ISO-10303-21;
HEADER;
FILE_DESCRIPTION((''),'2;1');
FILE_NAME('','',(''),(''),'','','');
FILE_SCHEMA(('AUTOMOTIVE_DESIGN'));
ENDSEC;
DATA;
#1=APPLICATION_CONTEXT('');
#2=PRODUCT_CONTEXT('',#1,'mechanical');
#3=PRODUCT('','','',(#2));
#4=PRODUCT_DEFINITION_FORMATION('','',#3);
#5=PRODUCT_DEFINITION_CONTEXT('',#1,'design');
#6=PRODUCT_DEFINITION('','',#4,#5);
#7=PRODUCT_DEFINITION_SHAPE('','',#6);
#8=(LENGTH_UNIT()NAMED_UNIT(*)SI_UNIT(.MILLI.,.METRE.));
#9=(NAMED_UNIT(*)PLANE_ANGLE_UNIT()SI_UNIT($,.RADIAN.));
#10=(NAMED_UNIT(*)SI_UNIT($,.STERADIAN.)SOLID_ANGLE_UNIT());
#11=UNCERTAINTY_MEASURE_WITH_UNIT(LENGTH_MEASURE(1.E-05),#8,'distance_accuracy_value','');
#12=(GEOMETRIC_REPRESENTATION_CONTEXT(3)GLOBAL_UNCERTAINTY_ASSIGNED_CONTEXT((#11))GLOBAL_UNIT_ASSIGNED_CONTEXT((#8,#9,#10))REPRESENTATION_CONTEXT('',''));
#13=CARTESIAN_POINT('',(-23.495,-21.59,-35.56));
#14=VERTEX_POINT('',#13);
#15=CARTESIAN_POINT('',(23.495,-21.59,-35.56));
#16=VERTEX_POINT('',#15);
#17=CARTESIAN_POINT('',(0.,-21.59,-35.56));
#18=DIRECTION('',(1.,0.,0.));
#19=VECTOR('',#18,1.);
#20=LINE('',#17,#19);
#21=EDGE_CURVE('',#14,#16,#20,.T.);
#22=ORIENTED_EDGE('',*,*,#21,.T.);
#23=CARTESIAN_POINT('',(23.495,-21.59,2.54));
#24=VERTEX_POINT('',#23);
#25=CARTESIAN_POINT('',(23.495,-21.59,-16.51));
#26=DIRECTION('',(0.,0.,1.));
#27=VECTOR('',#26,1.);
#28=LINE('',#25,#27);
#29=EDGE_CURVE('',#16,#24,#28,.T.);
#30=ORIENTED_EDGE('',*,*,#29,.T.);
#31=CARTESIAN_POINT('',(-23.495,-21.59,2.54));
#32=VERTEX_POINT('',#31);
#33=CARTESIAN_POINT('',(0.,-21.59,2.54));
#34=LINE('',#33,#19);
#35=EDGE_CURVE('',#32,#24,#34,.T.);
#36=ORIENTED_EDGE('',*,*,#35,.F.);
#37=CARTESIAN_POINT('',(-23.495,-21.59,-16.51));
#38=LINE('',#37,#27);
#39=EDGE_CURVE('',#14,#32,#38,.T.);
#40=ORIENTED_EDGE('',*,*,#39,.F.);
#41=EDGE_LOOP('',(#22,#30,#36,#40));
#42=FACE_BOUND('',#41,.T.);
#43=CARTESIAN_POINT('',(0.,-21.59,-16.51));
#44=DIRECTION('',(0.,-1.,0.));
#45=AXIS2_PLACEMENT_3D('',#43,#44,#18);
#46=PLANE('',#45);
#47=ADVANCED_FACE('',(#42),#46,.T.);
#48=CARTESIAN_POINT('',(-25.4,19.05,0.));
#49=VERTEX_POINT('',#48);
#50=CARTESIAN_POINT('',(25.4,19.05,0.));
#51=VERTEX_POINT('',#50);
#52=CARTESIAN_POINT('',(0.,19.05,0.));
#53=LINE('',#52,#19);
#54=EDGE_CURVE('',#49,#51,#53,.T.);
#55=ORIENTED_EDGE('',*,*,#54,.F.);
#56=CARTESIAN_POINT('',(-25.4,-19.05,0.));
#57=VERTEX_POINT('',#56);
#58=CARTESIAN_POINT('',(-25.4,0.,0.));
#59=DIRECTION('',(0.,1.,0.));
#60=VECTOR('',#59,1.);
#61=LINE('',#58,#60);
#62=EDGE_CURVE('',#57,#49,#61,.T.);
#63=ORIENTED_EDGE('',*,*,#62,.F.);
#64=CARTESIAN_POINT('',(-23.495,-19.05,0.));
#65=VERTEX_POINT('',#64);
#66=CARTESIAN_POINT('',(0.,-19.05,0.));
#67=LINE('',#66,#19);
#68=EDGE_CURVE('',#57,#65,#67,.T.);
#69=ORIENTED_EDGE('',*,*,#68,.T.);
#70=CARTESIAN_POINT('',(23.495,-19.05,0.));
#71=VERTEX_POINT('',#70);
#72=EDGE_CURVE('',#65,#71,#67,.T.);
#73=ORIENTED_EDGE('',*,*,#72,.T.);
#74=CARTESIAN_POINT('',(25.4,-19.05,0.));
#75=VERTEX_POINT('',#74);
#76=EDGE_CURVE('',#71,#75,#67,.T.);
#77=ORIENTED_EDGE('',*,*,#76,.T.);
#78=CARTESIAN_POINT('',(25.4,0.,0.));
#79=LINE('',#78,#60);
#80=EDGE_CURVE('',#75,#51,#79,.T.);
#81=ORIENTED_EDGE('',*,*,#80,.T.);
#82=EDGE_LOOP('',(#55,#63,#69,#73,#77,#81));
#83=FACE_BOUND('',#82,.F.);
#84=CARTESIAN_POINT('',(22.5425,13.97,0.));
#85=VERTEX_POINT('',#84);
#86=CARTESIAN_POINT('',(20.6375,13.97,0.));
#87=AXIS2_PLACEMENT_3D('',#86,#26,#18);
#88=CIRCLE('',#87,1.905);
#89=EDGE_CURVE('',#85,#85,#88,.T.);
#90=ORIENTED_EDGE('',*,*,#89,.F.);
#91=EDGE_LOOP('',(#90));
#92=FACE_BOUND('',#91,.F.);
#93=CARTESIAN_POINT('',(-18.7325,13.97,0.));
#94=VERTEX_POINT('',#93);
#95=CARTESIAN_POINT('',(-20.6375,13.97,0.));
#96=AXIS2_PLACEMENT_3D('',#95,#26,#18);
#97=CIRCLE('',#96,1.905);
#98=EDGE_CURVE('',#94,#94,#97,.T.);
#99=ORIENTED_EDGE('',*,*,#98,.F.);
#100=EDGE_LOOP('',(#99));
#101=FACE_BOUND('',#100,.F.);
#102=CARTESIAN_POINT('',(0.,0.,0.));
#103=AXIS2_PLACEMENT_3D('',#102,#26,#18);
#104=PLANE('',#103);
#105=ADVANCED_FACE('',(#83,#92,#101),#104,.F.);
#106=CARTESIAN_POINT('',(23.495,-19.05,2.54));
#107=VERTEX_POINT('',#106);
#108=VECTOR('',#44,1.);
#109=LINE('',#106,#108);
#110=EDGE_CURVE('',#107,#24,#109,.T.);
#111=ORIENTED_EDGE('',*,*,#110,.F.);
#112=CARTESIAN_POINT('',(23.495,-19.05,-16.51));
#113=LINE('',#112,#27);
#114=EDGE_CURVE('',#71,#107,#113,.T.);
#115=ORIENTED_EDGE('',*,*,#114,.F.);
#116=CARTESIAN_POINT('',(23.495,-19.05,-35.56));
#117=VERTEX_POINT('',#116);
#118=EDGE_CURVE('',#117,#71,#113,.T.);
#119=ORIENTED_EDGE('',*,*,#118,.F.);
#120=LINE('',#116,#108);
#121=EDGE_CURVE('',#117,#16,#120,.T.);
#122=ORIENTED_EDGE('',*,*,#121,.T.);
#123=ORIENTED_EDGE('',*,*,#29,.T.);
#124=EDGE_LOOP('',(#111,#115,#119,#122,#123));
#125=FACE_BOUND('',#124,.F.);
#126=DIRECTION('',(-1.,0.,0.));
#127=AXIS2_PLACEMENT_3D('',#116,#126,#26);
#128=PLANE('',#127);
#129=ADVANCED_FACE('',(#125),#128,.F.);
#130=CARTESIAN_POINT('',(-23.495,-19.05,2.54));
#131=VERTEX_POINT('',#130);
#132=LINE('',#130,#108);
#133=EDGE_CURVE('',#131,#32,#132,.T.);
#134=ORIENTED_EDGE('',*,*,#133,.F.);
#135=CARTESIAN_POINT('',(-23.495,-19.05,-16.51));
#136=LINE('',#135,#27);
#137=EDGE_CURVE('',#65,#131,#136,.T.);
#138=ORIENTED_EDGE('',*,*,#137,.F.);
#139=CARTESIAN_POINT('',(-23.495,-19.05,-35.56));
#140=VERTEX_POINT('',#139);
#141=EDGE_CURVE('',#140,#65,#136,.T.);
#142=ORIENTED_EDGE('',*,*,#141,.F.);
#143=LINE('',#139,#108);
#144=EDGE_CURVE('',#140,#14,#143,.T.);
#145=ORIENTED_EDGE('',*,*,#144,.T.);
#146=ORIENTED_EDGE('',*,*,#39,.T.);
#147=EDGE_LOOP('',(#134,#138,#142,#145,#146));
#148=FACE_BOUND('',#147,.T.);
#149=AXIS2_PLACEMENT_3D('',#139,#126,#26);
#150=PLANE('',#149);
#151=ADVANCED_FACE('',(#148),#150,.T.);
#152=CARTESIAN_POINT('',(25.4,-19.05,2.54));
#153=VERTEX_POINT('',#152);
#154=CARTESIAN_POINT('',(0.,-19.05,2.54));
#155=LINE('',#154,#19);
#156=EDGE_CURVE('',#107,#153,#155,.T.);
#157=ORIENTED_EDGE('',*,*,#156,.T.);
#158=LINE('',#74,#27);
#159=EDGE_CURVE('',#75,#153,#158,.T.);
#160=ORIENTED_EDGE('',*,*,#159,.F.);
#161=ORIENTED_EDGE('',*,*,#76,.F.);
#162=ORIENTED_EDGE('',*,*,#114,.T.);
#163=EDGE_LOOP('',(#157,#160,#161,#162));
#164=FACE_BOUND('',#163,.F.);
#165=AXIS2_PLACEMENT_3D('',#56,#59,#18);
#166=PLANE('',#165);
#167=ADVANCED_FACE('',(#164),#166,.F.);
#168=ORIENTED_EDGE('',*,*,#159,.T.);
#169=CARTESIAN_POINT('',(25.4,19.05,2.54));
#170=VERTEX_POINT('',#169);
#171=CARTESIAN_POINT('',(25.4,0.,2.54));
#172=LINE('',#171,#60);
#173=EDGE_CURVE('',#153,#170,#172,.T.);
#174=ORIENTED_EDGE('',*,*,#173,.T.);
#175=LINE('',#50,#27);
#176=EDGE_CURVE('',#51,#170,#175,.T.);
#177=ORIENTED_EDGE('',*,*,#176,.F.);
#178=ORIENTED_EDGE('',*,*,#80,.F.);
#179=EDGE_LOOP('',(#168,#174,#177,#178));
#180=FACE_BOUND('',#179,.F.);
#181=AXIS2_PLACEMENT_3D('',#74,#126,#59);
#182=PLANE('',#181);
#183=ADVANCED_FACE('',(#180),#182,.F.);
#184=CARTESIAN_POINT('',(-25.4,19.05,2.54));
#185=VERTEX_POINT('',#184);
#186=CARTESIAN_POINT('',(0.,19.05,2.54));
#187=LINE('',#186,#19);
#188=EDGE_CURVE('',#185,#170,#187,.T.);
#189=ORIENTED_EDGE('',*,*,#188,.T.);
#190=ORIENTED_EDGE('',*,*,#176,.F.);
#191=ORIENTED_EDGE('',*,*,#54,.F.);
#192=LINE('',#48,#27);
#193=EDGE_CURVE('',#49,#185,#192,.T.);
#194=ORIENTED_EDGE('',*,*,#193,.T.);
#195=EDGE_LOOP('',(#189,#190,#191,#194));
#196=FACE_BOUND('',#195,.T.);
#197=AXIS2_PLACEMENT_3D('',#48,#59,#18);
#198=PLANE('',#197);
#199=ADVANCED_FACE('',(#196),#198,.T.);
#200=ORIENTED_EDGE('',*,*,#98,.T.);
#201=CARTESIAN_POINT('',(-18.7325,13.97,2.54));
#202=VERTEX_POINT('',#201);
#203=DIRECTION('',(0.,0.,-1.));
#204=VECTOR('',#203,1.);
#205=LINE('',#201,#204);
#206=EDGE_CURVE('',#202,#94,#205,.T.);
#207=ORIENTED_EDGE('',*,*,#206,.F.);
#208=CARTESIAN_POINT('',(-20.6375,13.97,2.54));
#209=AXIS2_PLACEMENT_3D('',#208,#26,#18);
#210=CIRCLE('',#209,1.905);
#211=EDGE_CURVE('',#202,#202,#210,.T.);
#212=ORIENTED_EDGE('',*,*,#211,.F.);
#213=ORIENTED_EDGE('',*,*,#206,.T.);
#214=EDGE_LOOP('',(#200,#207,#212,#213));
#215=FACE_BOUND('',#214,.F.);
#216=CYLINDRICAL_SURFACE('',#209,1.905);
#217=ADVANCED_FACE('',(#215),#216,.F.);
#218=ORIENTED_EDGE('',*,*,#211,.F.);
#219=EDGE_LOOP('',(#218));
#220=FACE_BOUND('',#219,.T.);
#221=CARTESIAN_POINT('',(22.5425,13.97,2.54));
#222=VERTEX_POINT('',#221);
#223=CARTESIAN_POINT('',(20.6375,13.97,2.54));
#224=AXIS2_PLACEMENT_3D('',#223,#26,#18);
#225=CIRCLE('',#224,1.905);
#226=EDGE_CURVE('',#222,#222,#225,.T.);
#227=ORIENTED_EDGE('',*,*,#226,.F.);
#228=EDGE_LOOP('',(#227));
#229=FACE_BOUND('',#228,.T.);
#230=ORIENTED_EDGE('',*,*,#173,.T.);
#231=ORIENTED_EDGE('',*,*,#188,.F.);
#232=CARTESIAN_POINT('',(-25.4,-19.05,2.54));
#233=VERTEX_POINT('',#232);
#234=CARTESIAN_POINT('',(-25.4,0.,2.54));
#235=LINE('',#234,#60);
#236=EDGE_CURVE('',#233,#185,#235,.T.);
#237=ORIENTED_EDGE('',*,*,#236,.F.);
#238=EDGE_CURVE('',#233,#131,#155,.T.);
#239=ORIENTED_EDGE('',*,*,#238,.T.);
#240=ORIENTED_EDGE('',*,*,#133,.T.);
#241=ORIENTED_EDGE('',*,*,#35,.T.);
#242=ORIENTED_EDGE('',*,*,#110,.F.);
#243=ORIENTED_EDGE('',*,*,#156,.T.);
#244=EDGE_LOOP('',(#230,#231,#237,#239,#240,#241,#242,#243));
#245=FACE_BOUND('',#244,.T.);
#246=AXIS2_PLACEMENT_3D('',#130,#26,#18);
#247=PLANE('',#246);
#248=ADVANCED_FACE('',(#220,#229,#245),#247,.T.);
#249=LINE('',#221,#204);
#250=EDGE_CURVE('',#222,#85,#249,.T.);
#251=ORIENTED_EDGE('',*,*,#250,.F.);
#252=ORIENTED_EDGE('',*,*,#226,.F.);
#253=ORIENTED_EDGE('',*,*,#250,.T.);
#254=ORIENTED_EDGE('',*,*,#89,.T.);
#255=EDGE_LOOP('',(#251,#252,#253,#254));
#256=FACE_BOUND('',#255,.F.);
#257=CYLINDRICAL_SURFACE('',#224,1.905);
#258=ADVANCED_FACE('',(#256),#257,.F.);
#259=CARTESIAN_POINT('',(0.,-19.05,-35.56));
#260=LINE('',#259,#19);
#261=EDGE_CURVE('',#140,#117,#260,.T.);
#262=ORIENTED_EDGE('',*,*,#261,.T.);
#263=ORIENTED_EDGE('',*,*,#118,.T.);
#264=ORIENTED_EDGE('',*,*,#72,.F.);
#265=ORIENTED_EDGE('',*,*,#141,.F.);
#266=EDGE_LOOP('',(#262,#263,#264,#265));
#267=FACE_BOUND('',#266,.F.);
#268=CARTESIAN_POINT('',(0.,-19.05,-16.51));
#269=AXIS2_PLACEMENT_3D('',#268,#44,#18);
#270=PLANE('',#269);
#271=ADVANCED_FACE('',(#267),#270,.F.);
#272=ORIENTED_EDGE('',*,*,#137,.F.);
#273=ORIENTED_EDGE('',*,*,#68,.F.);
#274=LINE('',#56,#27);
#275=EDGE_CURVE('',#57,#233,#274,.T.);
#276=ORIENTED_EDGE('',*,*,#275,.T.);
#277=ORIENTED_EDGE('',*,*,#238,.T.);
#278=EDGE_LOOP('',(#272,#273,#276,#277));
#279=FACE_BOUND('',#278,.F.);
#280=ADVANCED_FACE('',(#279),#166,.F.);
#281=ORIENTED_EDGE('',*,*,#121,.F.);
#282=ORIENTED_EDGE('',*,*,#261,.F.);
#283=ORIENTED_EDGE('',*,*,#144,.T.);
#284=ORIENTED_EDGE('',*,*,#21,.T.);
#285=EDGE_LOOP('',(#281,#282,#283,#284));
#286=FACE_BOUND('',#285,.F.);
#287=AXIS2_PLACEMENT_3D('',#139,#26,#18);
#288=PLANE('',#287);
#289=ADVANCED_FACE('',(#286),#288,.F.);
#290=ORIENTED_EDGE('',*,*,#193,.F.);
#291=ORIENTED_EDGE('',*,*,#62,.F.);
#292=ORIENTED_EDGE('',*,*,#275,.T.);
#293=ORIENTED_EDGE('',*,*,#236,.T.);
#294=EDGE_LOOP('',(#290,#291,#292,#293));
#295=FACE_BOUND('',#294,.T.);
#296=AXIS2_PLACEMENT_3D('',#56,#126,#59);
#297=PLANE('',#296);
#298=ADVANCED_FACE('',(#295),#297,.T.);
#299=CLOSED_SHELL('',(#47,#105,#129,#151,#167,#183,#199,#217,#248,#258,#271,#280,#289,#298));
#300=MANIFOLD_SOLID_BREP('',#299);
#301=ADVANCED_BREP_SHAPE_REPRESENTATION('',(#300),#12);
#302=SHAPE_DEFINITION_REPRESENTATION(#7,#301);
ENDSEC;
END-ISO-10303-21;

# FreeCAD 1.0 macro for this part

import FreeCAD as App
import Part
import Sketcher
Q = App.Units.Quantity


def add_polygon(sketch, points):
    """Adds a closed chain of lines whose ends are joined by coincident constraints."""
    first, n = sketch.GeometryCount, len(points)
    for a, b in zip(points, points[1:] + points[:1]):
        sketch.addGeometry(Part.LineSegment(App.Vector(*a, 0), App.Vector(*b, 0)), False)
    for i in range(n):
        sketch.addConstraint(Sketcher.Constraint("Coincident", first + i, 2, first + (i + 1) % n, 1))

doc = App.newDocument("Part")
body = doc.addObject("PartDesign::Body", "Body")

sketch1 = body.newObject("Sketcher::SketchObject", "Sketch")
sketch1.AttachmentSupport = (doc.getObject("XY_Plane"), [""])
sketch1.MapMode = "FlatFace"
add_polygon(sketch1, [(-25, 19), (-25, -19), (25, -19), (25, 19)])
sketch1.addConstraint([
    Sketcher.Constraint("Vertical", 0),
    Sketcher.Constraint("Horizontal", 1),
    Sketcher.Constraint("Vertical", 2),
    Sketcher.Constraint("Horizontal", 3),
    Sketcher.Constraint("Symmetric", 0, 2, 2, 2, -1, 1),
    Sketcher.Constraint("DistanceX", 1, 1, 1, 2, Q("2 in")),
    Sketcher.Constraint("DistanceY", 0, 2, 0, 1, Q("1.5 in")),
])
pad1 = body.newObject("PartDesign::Pad", "Pad")
pad1.Profile = sketch1
pad1.Length = Q("0.1 in")

sketch2 = body.newObject("Sketcher::SketchObject", "Sketch001")
sketch2.AttachmentSupport = (doc.getObject("XZ_Plane"), [""])
sketch2.MapMode = "FlatFace"
sketch2.AttachmentOffset = App.Placement(App.Vector(0, 0, 0.75 * 25.4), App.Rotation())
add_polygon(sketch2, [(-23, 3), (-23, -36), (23, -36), (23, 3)])
sketch2.addConstraint([
    Sketcher.Constraint("Vertical", 0),
    Sketcher.Constraint("Horizontal", 1),
    Sketcher.Constraint("Vertical", 2),
    Sketcher.Constraint("Horizontal", 3),
    Sketcher.Constraint("DistanceY", 0, 2, 0, 1, Q("1.5 in")),
    Sketcher.Constraint("DistanceX", 1, 1, 1, 2, Q("1.85 in")),
    Sketcher.Constraint("DistanceY", 0, 2, -1, 1, Q("1.4 in")),
    Sketcher.Constraint("DistanceX", 0, 2, -1, 1, Q("0.925 in")),
])
pad2 = body.newObject("PartDesign::Pad", "Pad001")
pad2.Profile = sketch2
pad2.Length = Q("0.1 in")

sketch3 = body.newObject("Sketcher::SketchObject", "Sketch002")
sketch3.AttachmentSupport = (doc.getObject("XY_Plane"), [""])
sketch3.MapMode = "FlatFace"
sketch3.AttachmentOffset = App.Placement(App.Vector(0, 0, 0.1 * 25.4), App.Rotation())
sketch3.addGeometry([
    Part.Circle(App.Vector(20.6, 14, 0), App.Vector(0, 0, 1), 1.9),
    Part.Circle(App.Vector(-20.6, 14, 0), App.Vector(0, 0, 1), 1.9),
], False)
sketch3.addConstraint([
    Sketcher.Constraint("Equal", 0, 1),
    Sketcher.Constraint("Symmetric", 0, 3, 1, 3, -2),
    Sketcher.Constraint("Diameter", 0, Q("0.15 in")),
    Sketcher.Constraint("DistanceY", -1, 1, 0, 3, Q("0.55 in")),
    Sketcher.Constraint("DistanceX", -1, 1, 0, 3, Q("0.8125 in")),
])
pocket1 = body.newObject("PartDesign::Pocket", "Pocket")
pocket1.Profile = sketch3
pocket1.Type = "ThroughAll"

doc.recompute()
